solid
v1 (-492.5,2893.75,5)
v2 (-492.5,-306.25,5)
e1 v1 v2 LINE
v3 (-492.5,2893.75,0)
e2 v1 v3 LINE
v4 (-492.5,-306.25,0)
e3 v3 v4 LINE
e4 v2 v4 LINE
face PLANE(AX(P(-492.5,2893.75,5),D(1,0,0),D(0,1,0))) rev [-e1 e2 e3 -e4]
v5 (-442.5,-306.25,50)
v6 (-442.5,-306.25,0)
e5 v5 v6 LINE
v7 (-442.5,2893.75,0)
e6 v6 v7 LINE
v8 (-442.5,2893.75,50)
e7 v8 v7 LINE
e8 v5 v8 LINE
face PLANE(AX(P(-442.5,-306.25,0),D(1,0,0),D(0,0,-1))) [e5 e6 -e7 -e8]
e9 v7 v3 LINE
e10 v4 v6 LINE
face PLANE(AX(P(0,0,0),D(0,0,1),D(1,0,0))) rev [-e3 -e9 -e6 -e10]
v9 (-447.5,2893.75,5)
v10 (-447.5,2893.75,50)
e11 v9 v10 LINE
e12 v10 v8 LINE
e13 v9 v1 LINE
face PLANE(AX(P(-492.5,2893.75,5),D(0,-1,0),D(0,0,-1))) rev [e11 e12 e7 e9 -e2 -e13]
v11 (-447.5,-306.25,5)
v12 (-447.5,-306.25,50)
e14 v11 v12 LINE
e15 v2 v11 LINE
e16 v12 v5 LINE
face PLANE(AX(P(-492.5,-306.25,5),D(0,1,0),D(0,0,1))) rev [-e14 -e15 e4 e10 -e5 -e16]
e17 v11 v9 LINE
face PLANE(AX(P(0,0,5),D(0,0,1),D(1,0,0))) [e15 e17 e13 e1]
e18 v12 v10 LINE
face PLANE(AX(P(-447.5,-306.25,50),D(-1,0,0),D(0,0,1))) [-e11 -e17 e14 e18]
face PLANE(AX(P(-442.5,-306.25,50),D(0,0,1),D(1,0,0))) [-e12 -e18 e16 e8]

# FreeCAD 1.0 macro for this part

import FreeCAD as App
import Part
import Sketcher
from FreeCAD import Vector
Q = App.Units.Quantity

doc = App.newDocument("Part")
body = doc.addObject("PartDesign::Body", "Body")

# Sketch on XY plane
sketch1 = body.newObject("Sketcher::SketchObject", "Sketch")
sketch1.AttachmentSupport = (doc.getObject("XY_Plane"), [""])
sketch1.MapMode = "FlatFace"
sketch1.addGeometry(Part.LineSegment(Vector(-492, 2894, 0), Vector(-492, -306, 0)), False)
sketch1.addGeometry(Part.LineSegment(Vector(-492, -306, 0), Vector(-448, -306, 0)), False)
sketch1.addGeometry(Part.LineSegment(Vector(-448, -306, 0), Vector(-448, 2894, 0)), False)
sketch1.addGeometry(Part.LineSegment(Vector(-448, 2894, 0), Vector(-492, 2894, 0)), False)
sketch1.addConstraint(Sketcher.Constraint("Coincident", 0, 2, 1, 1))
sketch1.addConstraint(Sketcher.Constraint("Coincident", 1, 2, 2, 1))
sketch1.addConstraint(Sketcher.Constraint("Coincident", 2, 2, 3, 1))
sketch1.addConstraint(Sketcher.Constraint("Coincident", 3, 2, 0, 1))
sketch1.addConstraint(Sketcher.Constraint("Vertical", 0))
sketch1.addConstraint(Sketcher.Constraint("Horizontal", 1))
sketch1.addConstraint(Sketcher.Constraint("Vertical", 2))
sketch1.addConstraint(Sketcher.Constraint("Horizontal", 3))
sketch1.addConstraint(Sketcher.Constraint("DistanceX", 1, 1, 1, 2, Q("45 mm")))
sketch1.addConstraint(Sketcher.Constraint("DistanceY", 0, 2, 0, 1, Q("3200 mm")))
sketch1.addConstraint(Sketcher.Constraint("DistanceX", 0, 2, -1, 1, Q("492.5 mm")))
sketch1.addConstraint(Sketcher.Constraint("DistanceY", 0, 2, -1, 1, Q("306.25 mm")))
pad1 = body.newObject("PartDesign::Pad", "Pad")
pad1.Profile = sketch1
pad1.Length = 5

# Sketch on XZ plane
sketch2 = body.newObject("Sketcher::SketchObject", "Sketch001")
sketch2.AttachmentSupport = (doc.getObject("XZ_Plane"), [""])
sketch2.MapMode = "FlatFace"
sketch2.AttachmentOffset = App.Placement(Vector(0, 0, -2893.75), App.Rotation())
sketch2.addGeometry(Part.LineSegment(Vector(-442, 0, 0), Vector(-448, 0, 0)), False)
sketch2.addGeometry(Part.LineSegment(Vector(-448, 0, 0), Vector(-448, 50, 0)), False)
sketch2.addGeometry(Part.LineSegment(Vector(-448, 50, 0), Vector(-442, 50, 0)), False)
sketch2.addGeometry(Part.LineSegment(Vector(-442, 50, 0), Vector(-442, 0, 0)), False)
sketch2.addConstraint(Sketcher.Constraint("Coincident", 0, 2, 1, 1))
sketch2.addConstraint(Sketcher.Constraint("Coincident", 1, 2, 2, 1))
sketch2.addConstraint(Sketcher.Constraint("Coincident", 2, 2, 3, 1))
sketch2.addConstraint(Sketcher.Constraint("Coincident", 3, 2, 0, 1))
sketch2.addConstraint(Sketcher.Constraint("Horizontal", 0))
sketch2.addConstraint(Sketcher.Constraint("Vertical", 1))
sketch2.addConstraint(Sketcher.Constraint("Horizontal", 2))
sketch2.addConstraint(Sketcher.Constraint("Vertical", 3))
sketch2.addConstraint(Sketcher.Constraint("PointOnObject", 0, 2, -1))
sketch2.addConstraint(Sketcher.Constraint("DistanceX", 0, 2, 0, 1, Q("5 mm")))
sketch2.addConstraint(Sketcher.Constraint("DistanceY", 1, 1, 1, 2, Q("50 mm")))
sketch2.addConstraint(Sketcher.Constraint("DistanceX", 0, 2, -1, 1, Q("447.5 mm")))
pad2 = body.newObject("PartDesign::Pad", "Pad001")
pad2.Profile = sketch2
pad2.Length = 3200

doc.recompute()
